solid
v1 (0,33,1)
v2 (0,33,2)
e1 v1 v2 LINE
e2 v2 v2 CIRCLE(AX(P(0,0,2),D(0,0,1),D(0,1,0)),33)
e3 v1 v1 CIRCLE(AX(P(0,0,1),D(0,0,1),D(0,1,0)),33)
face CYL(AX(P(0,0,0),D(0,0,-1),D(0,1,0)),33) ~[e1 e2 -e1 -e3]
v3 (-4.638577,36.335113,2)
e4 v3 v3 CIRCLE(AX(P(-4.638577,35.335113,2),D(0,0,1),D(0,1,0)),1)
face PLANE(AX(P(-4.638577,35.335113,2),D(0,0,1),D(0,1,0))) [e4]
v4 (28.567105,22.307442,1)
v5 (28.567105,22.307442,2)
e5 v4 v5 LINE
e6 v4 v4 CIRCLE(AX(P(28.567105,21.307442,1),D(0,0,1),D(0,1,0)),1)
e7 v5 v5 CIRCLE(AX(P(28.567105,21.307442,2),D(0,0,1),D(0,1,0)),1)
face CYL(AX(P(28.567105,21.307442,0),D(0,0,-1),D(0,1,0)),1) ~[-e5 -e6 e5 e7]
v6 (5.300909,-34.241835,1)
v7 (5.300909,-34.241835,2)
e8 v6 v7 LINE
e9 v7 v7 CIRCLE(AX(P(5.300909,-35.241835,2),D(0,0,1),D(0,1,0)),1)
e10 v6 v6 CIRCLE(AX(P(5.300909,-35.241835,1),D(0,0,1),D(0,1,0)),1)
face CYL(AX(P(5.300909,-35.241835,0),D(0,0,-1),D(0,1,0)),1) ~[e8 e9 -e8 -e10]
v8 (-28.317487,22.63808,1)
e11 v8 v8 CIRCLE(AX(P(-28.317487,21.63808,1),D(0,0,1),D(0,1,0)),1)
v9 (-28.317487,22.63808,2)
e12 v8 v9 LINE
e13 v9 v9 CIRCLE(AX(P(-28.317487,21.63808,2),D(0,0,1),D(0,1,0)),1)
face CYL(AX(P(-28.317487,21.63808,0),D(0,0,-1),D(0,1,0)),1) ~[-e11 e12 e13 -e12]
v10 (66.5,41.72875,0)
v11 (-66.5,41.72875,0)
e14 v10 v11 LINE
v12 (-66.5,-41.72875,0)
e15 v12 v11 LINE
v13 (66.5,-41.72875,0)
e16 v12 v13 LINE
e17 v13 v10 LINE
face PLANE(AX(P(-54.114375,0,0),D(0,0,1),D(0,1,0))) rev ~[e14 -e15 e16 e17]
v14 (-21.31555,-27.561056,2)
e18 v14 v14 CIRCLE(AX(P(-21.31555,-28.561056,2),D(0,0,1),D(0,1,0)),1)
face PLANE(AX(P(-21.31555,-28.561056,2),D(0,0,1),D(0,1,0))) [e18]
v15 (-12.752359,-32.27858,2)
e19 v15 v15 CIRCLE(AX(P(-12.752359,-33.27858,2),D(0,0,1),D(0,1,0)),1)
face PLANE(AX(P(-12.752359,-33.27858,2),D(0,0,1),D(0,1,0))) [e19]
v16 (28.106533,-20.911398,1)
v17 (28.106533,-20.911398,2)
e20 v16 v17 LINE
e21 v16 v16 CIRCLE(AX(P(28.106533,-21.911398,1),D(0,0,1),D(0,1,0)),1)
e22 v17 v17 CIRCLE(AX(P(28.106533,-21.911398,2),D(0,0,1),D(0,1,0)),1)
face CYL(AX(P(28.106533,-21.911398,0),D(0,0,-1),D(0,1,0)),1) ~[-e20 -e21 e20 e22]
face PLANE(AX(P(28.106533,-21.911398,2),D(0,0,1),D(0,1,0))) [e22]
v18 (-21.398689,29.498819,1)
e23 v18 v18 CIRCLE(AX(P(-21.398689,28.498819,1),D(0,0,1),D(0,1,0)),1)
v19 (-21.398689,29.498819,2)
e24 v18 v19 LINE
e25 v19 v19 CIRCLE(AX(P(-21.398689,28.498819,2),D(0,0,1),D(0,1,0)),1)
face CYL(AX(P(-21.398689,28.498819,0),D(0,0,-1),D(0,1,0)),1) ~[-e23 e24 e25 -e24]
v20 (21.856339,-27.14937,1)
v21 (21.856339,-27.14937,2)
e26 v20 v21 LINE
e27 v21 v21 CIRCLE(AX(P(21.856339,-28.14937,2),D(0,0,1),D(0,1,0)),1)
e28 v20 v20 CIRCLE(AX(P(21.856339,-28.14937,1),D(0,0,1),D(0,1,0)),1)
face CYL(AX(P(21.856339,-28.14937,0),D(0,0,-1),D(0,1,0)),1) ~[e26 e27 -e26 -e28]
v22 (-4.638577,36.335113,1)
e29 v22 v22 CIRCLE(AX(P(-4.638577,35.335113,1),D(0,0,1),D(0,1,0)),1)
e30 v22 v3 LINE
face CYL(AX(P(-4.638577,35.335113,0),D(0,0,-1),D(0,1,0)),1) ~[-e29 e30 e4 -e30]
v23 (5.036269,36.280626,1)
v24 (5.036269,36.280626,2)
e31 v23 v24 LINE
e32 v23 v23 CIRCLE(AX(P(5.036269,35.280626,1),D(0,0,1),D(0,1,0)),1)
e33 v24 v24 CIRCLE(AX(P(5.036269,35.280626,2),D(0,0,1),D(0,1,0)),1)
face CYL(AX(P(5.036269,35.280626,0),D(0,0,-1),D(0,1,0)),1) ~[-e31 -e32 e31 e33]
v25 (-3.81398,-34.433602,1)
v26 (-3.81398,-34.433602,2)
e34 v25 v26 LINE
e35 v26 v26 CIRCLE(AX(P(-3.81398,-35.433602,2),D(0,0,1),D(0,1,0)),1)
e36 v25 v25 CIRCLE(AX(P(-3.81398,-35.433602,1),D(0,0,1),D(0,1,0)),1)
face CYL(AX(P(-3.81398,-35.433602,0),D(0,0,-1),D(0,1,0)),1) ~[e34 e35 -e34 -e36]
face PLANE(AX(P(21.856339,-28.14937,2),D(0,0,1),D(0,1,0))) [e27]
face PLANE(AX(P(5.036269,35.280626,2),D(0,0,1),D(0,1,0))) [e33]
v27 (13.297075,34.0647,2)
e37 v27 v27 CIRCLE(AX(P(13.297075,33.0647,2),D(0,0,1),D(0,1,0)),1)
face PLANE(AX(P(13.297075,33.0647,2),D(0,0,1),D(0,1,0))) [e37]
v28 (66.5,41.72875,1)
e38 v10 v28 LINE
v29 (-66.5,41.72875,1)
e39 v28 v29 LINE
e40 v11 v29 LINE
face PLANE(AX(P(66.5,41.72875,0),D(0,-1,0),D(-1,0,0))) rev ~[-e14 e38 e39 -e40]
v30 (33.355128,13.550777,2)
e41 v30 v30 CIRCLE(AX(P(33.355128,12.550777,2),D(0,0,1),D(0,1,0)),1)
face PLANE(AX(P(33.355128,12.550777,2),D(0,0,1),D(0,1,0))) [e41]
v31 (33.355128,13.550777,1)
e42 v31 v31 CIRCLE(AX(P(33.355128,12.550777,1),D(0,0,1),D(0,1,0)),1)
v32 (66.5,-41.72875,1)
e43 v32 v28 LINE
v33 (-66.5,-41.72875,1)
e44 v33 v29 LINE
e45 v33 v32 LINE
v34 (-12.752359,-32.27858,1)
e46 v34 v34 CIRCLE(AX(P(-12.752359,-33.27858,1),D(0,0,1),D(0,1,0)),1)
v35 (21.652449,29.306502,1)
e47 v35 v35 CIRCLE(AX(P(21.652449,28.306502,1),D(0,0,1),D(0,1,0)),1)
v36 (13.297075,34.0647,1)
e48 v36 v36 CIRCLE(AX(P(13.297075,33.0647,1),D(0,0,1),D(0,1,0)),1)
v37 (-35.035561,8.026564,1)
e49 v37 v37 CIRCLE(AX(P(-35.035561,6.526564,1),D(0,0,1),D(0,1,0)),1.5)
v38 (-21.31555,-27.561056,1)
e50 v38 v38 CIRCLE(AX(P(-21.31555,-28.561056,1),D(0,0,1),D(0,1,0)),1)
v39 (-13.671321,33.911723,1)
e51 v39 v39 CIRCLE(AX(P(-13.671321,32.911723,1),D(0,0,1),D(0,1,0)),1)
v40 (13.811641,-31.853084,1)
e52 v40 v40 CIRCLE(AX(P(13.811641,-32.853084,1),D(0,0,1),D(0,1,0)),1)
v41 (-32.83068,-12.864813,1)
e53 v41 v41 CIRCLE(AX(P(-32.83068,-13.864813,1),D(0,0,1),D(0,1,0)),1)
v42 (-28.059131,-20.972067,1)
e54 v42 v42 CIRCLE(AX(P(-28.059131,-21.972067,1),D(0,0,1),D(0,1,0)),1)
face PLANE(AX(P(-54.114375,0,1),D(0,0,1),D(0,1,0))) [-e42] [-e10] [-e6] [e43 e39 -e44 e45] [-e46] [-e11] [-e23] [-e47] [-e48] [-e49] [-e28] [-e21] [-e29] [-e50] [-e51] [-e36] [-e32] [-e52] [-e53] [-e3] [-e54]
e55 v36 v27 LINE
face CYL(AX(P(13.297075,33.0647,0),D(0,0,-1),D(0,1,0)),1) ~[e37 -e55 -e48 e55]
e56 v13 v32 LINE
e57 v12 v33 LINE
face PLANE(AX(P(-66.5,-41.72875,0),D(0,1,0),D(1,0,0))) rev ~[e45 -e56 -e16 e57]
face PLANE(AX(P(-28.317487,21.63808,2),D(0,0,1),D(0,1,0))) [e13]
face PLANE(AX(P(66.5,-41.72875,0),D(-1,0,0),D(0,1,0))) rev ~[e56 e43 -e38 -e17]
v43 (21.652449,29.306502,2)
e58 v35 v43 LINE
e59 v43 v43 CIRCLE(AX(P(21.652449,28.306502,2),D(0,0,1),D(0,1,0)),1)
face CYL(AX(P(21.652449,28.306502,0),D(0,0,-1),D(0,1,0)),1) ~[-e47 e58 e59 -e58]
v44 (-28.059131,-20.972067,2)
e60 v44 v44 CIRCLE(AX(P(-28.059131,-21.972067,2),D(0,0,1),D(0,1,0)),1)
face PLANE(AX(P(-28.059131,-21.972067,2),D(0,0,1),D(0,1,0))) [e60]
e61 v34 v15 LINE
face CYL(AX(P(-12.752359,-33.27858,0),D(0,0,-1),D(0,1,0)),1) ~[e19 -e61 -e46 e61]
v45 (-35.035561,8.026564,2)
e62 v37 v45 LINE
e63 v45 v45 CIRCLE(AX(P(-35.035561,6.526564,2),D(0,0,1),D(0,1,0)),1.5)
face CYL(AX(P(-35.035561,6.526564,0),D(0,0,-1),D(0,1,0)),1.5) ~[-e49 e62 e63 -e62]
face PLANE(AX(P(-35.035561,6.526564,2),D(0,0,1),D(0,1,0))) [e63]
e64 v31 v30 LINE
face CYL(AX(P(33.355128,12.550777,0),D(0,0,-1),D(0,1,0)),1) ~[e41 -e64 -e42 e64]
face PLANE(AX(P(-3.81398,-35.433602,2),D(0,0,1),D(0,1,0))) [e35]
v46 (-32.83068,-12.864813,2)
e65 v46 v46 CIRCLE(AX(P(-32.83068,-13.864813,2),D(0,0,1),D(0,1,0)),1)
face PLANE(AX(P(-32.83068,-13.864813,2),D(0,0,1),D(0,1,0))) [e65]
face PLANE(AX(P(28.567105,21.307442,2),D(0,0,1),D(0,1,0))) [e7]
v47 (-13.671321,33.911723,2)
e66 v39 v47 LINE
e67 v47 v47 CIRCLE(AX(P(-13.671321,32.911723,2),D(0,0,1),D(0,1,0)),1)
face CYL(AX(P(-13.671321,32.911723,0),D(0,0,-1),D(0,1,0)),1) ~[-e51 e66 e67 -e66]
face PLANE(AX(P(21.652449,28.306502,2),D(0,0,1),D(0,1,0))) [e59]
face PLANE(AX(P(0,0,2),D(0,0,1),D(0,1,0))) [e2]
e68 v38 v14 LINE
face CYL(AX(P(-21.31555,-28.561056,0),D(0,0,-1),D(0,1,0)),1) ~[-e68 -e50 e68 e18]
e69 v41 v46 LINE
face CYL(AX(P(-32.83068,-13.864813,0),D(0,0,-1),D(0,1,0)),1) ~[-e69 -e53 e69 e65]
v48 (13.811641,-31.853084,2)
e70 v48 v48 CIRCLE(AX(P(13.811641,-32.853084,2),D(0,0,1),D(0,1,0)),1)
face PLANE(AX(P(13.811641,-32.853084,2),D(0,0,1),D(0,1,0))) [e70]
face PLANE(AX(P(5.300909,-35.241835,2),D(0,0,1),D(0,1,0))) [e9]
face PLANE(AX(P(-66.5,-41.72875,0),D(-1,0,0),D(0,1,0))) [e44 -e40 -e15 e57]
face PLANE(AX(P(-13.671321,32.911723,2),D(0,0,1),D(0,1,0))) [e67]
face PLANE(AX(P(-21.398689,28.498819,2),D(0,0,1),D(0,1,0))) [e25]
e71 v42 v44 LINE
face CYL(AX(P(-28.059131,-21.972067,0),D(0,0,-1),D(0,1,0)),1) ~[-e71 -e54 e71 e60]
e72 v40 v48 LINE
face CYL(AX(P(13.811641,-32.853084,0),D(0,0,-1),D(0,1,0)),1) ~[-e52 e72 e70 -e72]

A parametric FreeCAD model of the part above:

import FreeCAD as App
import Part
import Sketcher
from FreeCAD import Vector


def add_polygon(sketch, points):
    """Adds a closed chain of lines whose ends are joined by coincident constraints."""
    first, n = sketch.GeometryCount, len(points)
    for a, b in zip(points, points[1:] + points[:1]):
        sketch.addGeometry(Part.LineSegment(App.Vector(*a, 0), App.Vector(*b, 0)), False)
    for i in range(n):
        sketch.addConstraint(Sketcher.Constraint("Coincident", first + i, 2, first + (i + 1) % n, 1))

doc = App.newDocument("Part")
body = doc.addObject("PartDesign::Body", "Body")

# Sketch on XY plane
sketch1 = body.newObject("Sketcher::SketchObject", "Sketch")
sketch1.AttachmentSupport = (doc.getObject("XY_Plane"), [""])
sketch1.MapMode = "FlatFace"
add_polygon(sketch1, [(-41.72875, 66.5), (-41.72875, -66.5), (41.72875, -66.5), (41.72875, 66.5)])  # lines 0-3
sketch1.addGeometry(Part.Circle(Vector(-21.911398, -28.106533, 0), Vector(0, 0, 1), 1), False)  # 4
sketch1.addGeometry(Part.Circle(Vector(-28.14937, -21.856339, 0), Vector(0, 0, 1), 1), False)  # 5
sketch1.addGeometry(Part.Circle(Vector(-32.853084, -13.811641, 0), Vector(0, 0, 1), 1), False)  # 6
sketch1.addGeometry(Part.Circle(Vector(-35.241835, -5.300909, 0), Vector(0, 0, 1), 1), False)  # 7
sketch1.addGeometry(Part.Circle(Vector(12.550777, -33.355128, 0), Vector(0, 0, 1), 1), False)  # 8
sketch1.addGeometry(Part.Circle(Vector(21.307442, -28.567105, 0), Vector(0, 0, 1), 1), False)  # 9
sketch1.addGeometry(Part.Circle(Vector(28.306502, -21.652449, 0), Vector(0, 0, 1), 1), False)  # 10
sketch1.addGeometry(Part.Circle(Vector(0, 0, 0), Vector(0, 0, 1), 33), False)  # 11
sketch1.addGeometry(Part.Circle(Vector(33.0647, -13.297075, 0), Vector(0, 0, 1), 1), False)  # 12
sketch1.addGeometry(Part.Circle(Vector(35.280626, -5.036269, 0), Vector(0, 0, 1), 1), False)  # 13
sketch1.addGeometry(Part.Circle(Vector(-35.433602, 3.81398, 0), Vector(0, 0, 1), 1), False)  # 14
sketch1.addGeometry(Part.Circle(Vector(-33.27858, 12.752359, 0), Vector(0, 0, 1), 1), False)  # 15
sketch1.addGeometry(Part.Circle(Vector(-28.561056, 21.31555, 0), Vector(0, 0, 1), 1), False)  # 16
sketch1.addGeometry(Part.Circle(Vector(-21.972067, 28.059131, 0), Vector(0, 0, 1), 1), False)  # 17
sketch1.addGeometry(Part.Circle(Vector(-13.864813, 32.83068, 0), Vector(0, 0, 1), 1), False)  # 18
sketch1.addGeometry(Part.Circle(Vector(35.335113, 4.638577, 0), Vector(0, 0, 1), 1), False)  # 19
sketch1.addGeometry(Part.Circle(Vector(32.911723, 13.671321, 0), Vector(0, 0, 1), 1), False)  # 20
sketch1.addGeometry(Part.Circle(Vector(6.526564, 35.035561, 0), Vector(0, 0, 1), 1.5), False)  # 21
sketch1.addGeometry(Part.Circle(Vector(28.498819, 21.398689, 0), Vector(0, 0, 1), 1), False)  # 22
sketch1.addGeometry(Part.Circle(Vector(21.63808, 28.317487, 0), Vector(0, 0, 1), 1), False)  # 23
sketch1.addConstraint([
    Sketcher.Constraint("Vertical", 0),
    Sketcher.Constraint("Horizontal", 1),
    Sketcher.Constraint("Vertical", 2),
    Sketcher.Constraint("Horizontal", 3),
    Sketcher.Constraint("Coincident", 11, 3, -1, 1),
    Sketcher.Constraint("Equal", 4, 5),
    Sketcher.Constraint("Equal", 5, 6),
    Sketcher.Constraint("Equal", 6, 7),
    Sketcher.Constraint("Equal", 7, 8),
    Sketcher.Constraint("Equal", 8, 9),
    Sketcher.Constraint("Equal", 9, 10),
    Sketcher.Constraint("Equal", 10, 12),
    Sketcher.Constraint("Equal", 12, 13),
    Sketcher.Constraint("Equal", 13, 14),
    Sketcher.Constraint("Equal", 14, 15),
    Sketcher.Constraint("Equal", 15, 16),
    Sketcher.Constraint("Equal", 16, 17),
    Sketcher.Constraint("Equal", 17, 18),
    Sketcher.Constraint("Equal", 18, 19),
    Sketcher.Constraint("Equal", 19, 20),
    Sketcher.Constraint("Equal", 20, 22),
    Sketcher.Constraint("Equal", 22, 23),
    Sketcher.Constraint("Symmetric", 0, 2, 2, 2, -1, 1),
    Sketcher.Constraint("Diameter", 4, 2.0),
    Sketcher.Constraint("Diameter", 11, 66.0),
    Sketcher.Constraint("Diameter", 21, 3.0),
    Sketcher.Constraint("DistanceY", 0, 2, 0, 1, 133.0),
    Sketcher.Constraint("DistanceX", 1, 1, 1, 2, 83.4575),
    Sketcher.Constraint("DistanceY", 6, 3, 15, 3, 26.564),
    Sketcher.Constraint("DistanceX", -1, 1, 10, 3, 28.306502),
    Sketcher.Constraint("DistanceX", -1, 1, 12, 3, 33.0647),
    Sketcher.Constraint("DistanceX", 4, 3, 10, 3, 50.2179),
    Sketcher.Constraint("DistanceY", 14, 3, 18, 3, 29.0167),
    Sketcher.Constraint("DistanceX", 5, 3, -1, 1, 28.14937),
    Sketcher.Constraint("DistanceY", 5, 3, -1, 1, 21.856339),
    Sketcher.Constraint("DistanceY", 6, 3, -1, 1, 13.811641),
    Sketcher.Constraint("DistanceY", 7, 3, -1, 1, 5.300909),
    Sketcher.Constraint("DistanceY", 10, 3, -1, 1, 21.652449),
    Sketcher.Constraint("DistanceY", 13, 3, -1, 1, 5.036269),
    Sketcher.Constraint("DistanceY", -1, 1, 14, 3, 3.81398),
    Sketcher.Constraint("DistanceX", 15, 3, -1, 1, 33.27858),
    Sketcher.Constraint("DistanceY", -1, 1, 16, 3, 21.31555),
    Sketcher.Constraint("DistanceY", -1, 1, 17, 3, 28.059131),
    Sketcher.Constraint("DistanceY", -1, 1, 20, 3, 13.671321),
    Sketcher.Constraint("DistanceY", -1, 1, 21, 3, 35.035561),
    Sketcher.Constraint("DistanceX", -1, 1, 22, 3, 28.498819),
    Sketcher.Constraint("DistanceY", -1, 1, 22, 3, 21.398689),
    Sketcher.Constraint("DistanceX", -1, 1, 23, 3, 21.63808),
    Sketcher.Constraint("DistanceY", 4, 3, 6, 3, 14.294892),
    Sketcher.Constraint("DistanceX", 7, 3, 6, 3, 2.388751),
    Sketcher.Constraint("DistanceY", 8, 3, 5, 3, 11.498789),
    Sketcher.Constraint("DistanceX", 6, 3, 8, 3, 45.403861),
    Sketcher.Constraint("DistanceX", 4, 3, 9, 3, 43.21884),
    Sketcher.Constraint("DistanceY", 9, 3, 12, 3, 15.27003),
    Sketcher.Constraint("DistanceX", 8, 3, 13, 3, 22.729849),
    Sketcher.Constraint("DistanceX", 14, 3, 5, 3, 7.284232),
    Sketcher.Constraint("DistanceX", 7, 3, 16, 3, 6.680779),
    Sketcher.Constraint("DistanceX", 16, 3, 17, 3, 6.588989),
    Sketcher.Constraint("DistanceX", 14, 3, 18, 3, 21.568789),
    Sketcher.Constraint("DistanceY", 12, 3, 19, 3, 17.935652),
    Sketcher.Constraint("DistanceX", 10, 3, 19, 3, 7.028611),
    Sketcher.Constraint("DistanceX", 20, 3, 19, 3, 2.42339),
    Sketcher.Constraint("DistanceX", 17, 3, 21, 3, 28.498631),
    Sketcher.Constraint("DistanceX", 21, 3, 20, 3, 26.385159),
    Sketcher.Constraint("DistanceY", 19, 3, 22, 3, 16.760112),
    Sketcher.Constraint("DistanceY", 19, 3, 23, 3, 23.67891),
])
pad1 = body.newObject("PartDesign::Pad", "Pad")
pad1.Profile = sketch1
pad1.Length = 1

# Sketch on XY plane
sketch2 = body.newObject("Sketcher::SketchObject", "Sketch001")
sketch2.AttachmentSupport = (doc.getObject("XY_Plane"), [""])
sketch2.MapMode = "FlatFace"
sketch2.addGeometry([
    Part.Circle(Vector(0, 0, 0), Vector(0, 0, 1), 33),  # 0
    Part.Circle(Vector(-13.864813, 32.83068, 0), Vector(0, 0, 1), 1),  # 1
    Part.Circle(Vector(-21.972067, 28.059131, 0), Vector(0, 0, 1), 1),  # 2
    Part.Circle(Vector(-28.561056, 21.31555, 0), Vector(0, 0, 1), 1),  # 3
    Part.Circle(Vector(-33.27858, 12.752359, 0), Vector(0, 0, 1), 1),  # 4
    Part.Circle(Vector(-35.433602, 3.81398, 0), Vector(0, 0, 1), 1),  # 5
    Part.Circle(Vector(-35.241835, -5.300909, 0), Vector(0, 0, 1), 1),  # 6
    Part.Circle(Vector(-32.853084, -13.811641, 0), Vector(0, 0, 1), 1),  # 7
    Part.Circle(Vector(-28.14937, -21.856339, 0), Vector(0, 0, 1), 1),  # 8
    Part.Circle(Vector(-21.911398, -28.106533, 0), Vector(0, 0, 1), 1),  # 9
    Part.Circle(Vector(12.550777, -33.355128, 0), Vector(0, 0, 1), 1),  # 10
    Part.Circle(Vector(21.307442, -28.567105, 0), Vector(0, 0, 1), 1),  # 11
    Part.Circle(Vector(28.306502, -21.652449, 0), Vector(0, 0, 1), 1),  # 12
    Part.Circle(Vector(33.0647, -13.297075, 0), Vector(0, 0, 1), 1),  # 13
    Part.Circle(Vector(35.280626, -5.036269, 0), Vector(0, 0, 1), 1),  # 14
    Part.Circle(Vector(35.335113, 4.638577, 0), Vector(0, 0, 1), 1),  # 15
    Part.Circle(Vector(32.911723, 13.671321, 0), Vector(0, 0, 1), 1),  # 16
    Part.Circle(Vector(28.498819, 21.398689, 0), Vector(0, 0, 1), 1),  # 17
    Part.Circle(Vector(21.63808, 28.317487, 0), Vector(0, 0, 1), 1),  # 18
    Part.Circle(Vector(6.526564, 35.035561, 0), Vector(0, 0, 1), 1.5),  # 19
], False)
sketch2.addConstraint([
    Sketcher.Constraint("Coincident", 0, 3, -1, 1),
    Sketcher.Constraint("Equal", 1, 2),
    Sketcher.Constraint("Equal", 2, 3),
    Sketcher.Constraint("Equal", 3, 4),
    Sketcher.Constraint("Equal", 4, 5),
    Sketcher.Constraint("Equal", 5, 6),
    Sketcher.Constraint("Equal", 6, 7),
    Sketcher.Constraint("Equal", 7, 8),
    Sketcher.Constraint("Equal", 8, 9),
    Sketcher.Constraint("Equal", 9, 10),
    Sketcher.Constraint("Equal", 10, 11),
    Sketcher.Constraint("Equal", 11, 12),
    Sketcher.Constraint("Equal", 12, 13),
    Sketcher.Constraint("Equal", 13, 14),
    Sketcher.Constraint("Equal", 14, 15),
    Sketcher.Constraint("Equal", 15, 16),
    Sketcher.Constraint("Equal", 16, 17),
    Sketcher.Constraint("Equal", 17, 18),
    Sketcher.Constraint("Diameter", 0, 66.0),
    Sketcher.Constraint("Diameter", 1, 2.0),
    Sketcher.Constraint("Diameter", 19, 3.0),
    Sketcher.Constraint("DistanceY", 7, 3, 4, 3, 26.564),
    Sketcher.Constraint("DistanceX", -1, 1, 12, 3, 28.306502),
    Sketcher.Constraint("DistanceX", -1, 1, 13, 3, 33.0647),
    Sketcher.Constraint("DistanceY", 5, 3, 1, 3, 29.0167),
    Sketcher.Constraint("DistanceX", 9, 3, 12, 3, 50.2179),
    Sketcher.Constraint("DistanceY", -1, 1, 1, 3, 32.83068),
    Sketcher.Constraint("DistanceY", -1, 1, 2, 3, 28.059131),
    Sketcher.Constraint("DistanceY", -1, 1, 3, 3, 21.31555),
    Sketcher.Constraint("DistanceX", 4, 3, -1, 1, 33.27858),
    Sketcher.Constraint("DistanceY", -1, 1, 4, 3, 12.752359),
    Sketcher.Constraint("DistanceY", 6, 3, -1, 1, 5.300909),
    Sketcher.Constraint("DistanceX", 8, 3, -1, 1, 28.14937),
    Sketcher.Constraint("DistanceY", 8, 3, -1, 1, 21.856339),
    Sketcher.Constraint("DistanceY", 12, 3, -1, 1, 21.652449),
    Sketcher.Constraint("DistanceY", 14, 3, -1, 1, 5.036269),
    Sketcher.Constraint("DistanceY", -1, 1, 16, 3, 13.671321),
    Sketcher.Constraint("DistanceX", -1, 1, 17, 3, 28.498819),
    Sketcher.Constraint("DistanceY", -1, 1, 17, 3, 21.398689),
    Sketcher.Constraint("DistanceX", -1, 1, 18, 3, 21.63808),
    Sketcher.Constraint("DistanceY", -1, 1, 19, 3, 35.035561),
    Sketcher.Constraint("DistanceX", 3, 3, 2, 3, 6.588989),
    Sketcher.Constraint("DistanceX", 5, 3, 1, 3, 21.568789),
    Sketcher.Constraint("DistanceX", 6, 3, 3, 3, 6.680779),
    Sketcher.Constraint("DistanceX", 6, 3, 7, 3, 2.388751),
    Sketcher.Constraint("DistanceX", 5, 3, 8, 3, 7.284232),
    Sketcher.Constraint("DistanceY", 9, 3, 7, 3, 14.294892),
    Sketcher.Constraint("DistanceY", 10, 3, 8, 3, 11.498789),
    Sketcher.Constraint("DistanceX", 7, 3, 10, 3, 45.403861),
    Sketcher.Constraint("DistanceX", 9, 3, 11, 3, 43.21884),
    Sketcher.Constraint("DistanceY", 11, 3, 13, 3, 15.27003),
    Sketcher.Constraint("DistanceX", 10, 3, 14, 3, 22.729849),
    Sketcher.Constraint("DistanceY", 13, 3, 15, 3, 17.935652),
    Sketcher.Constraint("DistanceX", 12, 3, 15, 3, 7.028611),
    Sketcher.Constraint("DistanceX", 16, 3, 15, 3, 2.42339),
    Sketcher.Constraint("DistanceY", 15, 3, 17, 3, 16.760112),
    Sketcher.Constraint("DistanceY", 15, 3, 18, 3, 23.67891),
    Sketcher.Constraint("DistanceX", 2, 3, 19, 3, 28.498631),
    Sketcher.Constraint("DistanceX", 19, 3, 16, 3, 26.385159),
])
pad2 = body.newObject("PartDesign::Pad", "Pad001")
pad2.Profile = sketch2
pad2.Length = 2
body2 = doc.addObject("PartDesign::Body", "Body001")
doc.recompute()

body.Placement = App.Placement(Vector(0, 0, 0), App.Rotation(Vector(0, 0, 1), 90))
boolean = body2.newObject("PartDesign::Boolean", "Boolean")
boolean.Type = "Fuse"
boolean.addObjects([body])

doc.recompute()
